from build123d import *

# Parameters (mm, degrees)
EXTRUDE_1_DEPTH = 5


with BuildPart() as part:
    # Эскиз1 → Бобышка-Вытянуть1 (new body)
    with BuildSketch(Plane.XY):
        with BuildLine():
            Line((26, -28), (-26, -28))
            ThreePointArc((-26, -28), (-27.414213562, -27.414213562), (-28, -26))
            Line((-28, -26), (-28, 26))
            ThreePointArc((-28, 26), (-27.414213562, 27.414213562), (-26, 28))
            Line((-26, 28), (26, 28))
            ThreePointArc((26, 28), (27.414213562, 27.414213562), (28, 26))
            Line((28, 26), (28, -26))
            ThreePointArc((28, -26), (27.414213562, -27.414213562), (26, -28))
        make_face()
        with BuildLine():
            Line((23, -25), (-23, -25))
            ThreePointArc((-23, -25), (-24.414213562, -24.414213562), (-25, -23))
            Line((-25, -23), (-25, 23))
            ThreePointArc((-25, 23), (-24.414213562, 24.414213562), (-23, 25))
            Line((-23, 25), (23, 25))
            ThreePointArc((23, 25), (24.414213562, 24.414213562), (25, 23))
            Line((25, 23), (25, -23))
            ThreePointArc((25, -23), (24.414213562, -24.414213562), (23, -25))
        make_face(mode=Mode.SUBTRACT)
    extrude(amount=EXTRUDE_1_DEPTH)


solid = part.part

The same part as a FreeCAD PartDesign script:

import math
import FreeCAD as App
import Part
import Sketcher

V = App.Vector
Q = App.Units.Quantity

doc = App.newDocument("Part")
body = doc.addObject("PartDesign::Body", "Body")

# Sketch on XY plane
sketch1 = body.newObject("Sketcher::SketchObject", "Sketch")
sketch1.AttachmentSupport = (doc.getObject("XY_Plane"), [""])
sketch1.MapMode = "FlatFace"
sketch1.addGeometry(Part.LineSegment(V(-26, -28, 0), V(26, -28, 0)), False)
sketch1.addGeometry(Part.ArcOfCircle(Part.Circle(V(26, -26, 0), V(0, 0, 1), 2), math.radians(-90), math.radians(0)), False)
sketch1.addGeometry(Part.LineSegment(V(28, -26, 0), V(28, 26, 0)), False)
sketch1.addGeometry(Part.ArcOfCircle(Part.Circle(V(26, 26, 0), V(0, 0, 1), 2), math.radians(0), math.radians(90)), False)
sketch1.addGeometry(Part.LineSegment(V(26, 28, 0), V(-26, 28, 0)), False)
sketch1.addGeometry(Part.ArcOfCircle(Part.Circle(V(-26, 26, 0), V(0, 0, 1), 2), math.radians(90), math.radians(180)), False)
sketch1.addGeometry(Part.LineSegment(V(-28, 26, 0), V(-28, -26, 0)), False)
sketch1.addGeometry(Part.ArcOfCircle(Part.Circle(V(-26, -26, 0), V(0, 0, 1), 2), math.radians(-180), math.radians(-90)), False)
sketch1.addGeometry(Part.LineSegment(V(23, -25, 0), V(-23, -25, 0)), False)
sketch1.addGeometry(Part.ArcOfCircle(Part.Circle(V(-23, -23, 0), V(0, 0, 1), 2), math.radians(-180), math.radians(-90)), False)
sketch1.addGeometry(Part.LineSegment(V(-25, -23, 0), V(-25, 23, 0)), False)
sketch1.addGeometry(Part.ArcOfCircle(Part.Circle(V(-23, 23, 0), V(0, 0, 1), 2), math.radians(90), math.radians(180)), False)
sketch1.addGeometry(Part.LineSegment(V(-23, 25, 0), V(23, 25, 0)), False)
sketch1.addGeometry(Part.ArcOfCircle(Part.Circle(V(23, 23, 0), V(0, 0, 1), 2), math.radians(0), math.radians(90)), False)
sketch1.addGeometry(Part.LineSegment(V(25, 23, 0), V(25, -23, 0)), False)
sketch1.addGeometry(Part.ArcOfCircle(Part.Circle(V(23, -23, 0), V(0, 0, 1), 2), math.radians(-90), math.radians(0)), False)
sketch1.addConstraint(Sketcher.Constraint("Tangent", 0, 2, 1, 1))
sketch1.addConstraint(Sketcher.Constraint("Tangent", 1, 2, 2, 1))
sketch1.addConstraint(Sketcher.Constraint("Tangent", 2, 2, 3, 1))
sketch1.addConstraint(Sketcher.Constraint("Tangent", 3, 2, 4, 1))
sketch1.addConstraint(Sketcher.Constraint("Tangent", 4, 2, 5, 1))
sketch1.addConstraint(Sketcher.Constraint("Tangent", 5, 2, 6, 1))
sketch1.addConstraint(Sketcher.Constraint("Tangent", 6, 2, 7, 1))
sketch1.addConstraint(Sketcher.Constraint("Tangent", 7, 2, 0, 1))
sketch1.addConstraint(Sketcher.Constraint("Tangent", 8, 2, 9, 2))
sketch1.addConstraint(Sketcher.Constraint("Tangent", 9, 1, 10, 1))
sketch1.addConstraint(Sketcher.Constraint("Tangent", 10, 2, 11, 2))
sketch1.addConstraint(Sketcher.Constraint("Tangent", 11, 1, 12, 1))
sketch1.addConstraint(Sketcher.Constraint("Tangent", 12, 2, 13, 2))
sketch1.addConstraint(Sketcher.Constraint("Tangent", 13, 1, 14, 1))
sketch1.addConstraint(Sketcher.Constraint("Tangent", 14, 2, 15, 2))
sketch1.addConstraint(Sketcher.Constraint("Tangent", 15, 1, 8, 1))
sketch1.addConstraint(Sketcher.Constraint("Horizontal", 0))
sketch1.addConstraint(Sketcher.Constraint("Vertical", 2))
sketch1.addConstraint(Sketcher.Constraint("Horizontal", 4))
sketch1.addConstraint(Sketcher.Constraint("Vertical", 6))
sketch1.addConstraint(Sketcher.Constraint("Horizontal", 8))
sketch1.addConstraint(Sketcher.Constraint("Vertical", 10))
sketch1.addConstraint(Sketcher.Constraint("Horizontal", 12))
sketch1.addConstraint(Sketcher.Constraint("Vertical", 14))
sketch1.addConstraint(Sketcher.Constraint("Equal", 1, 3))
sketch1.addConstraint(Sketcher.Constraint("Equal", 3, 5))
sketch1.addConstraint(Sketcher.Constraint("Equal", 5, 7))
sketch1.addConstraint(Sketcher.Constraint("Equal", 7, 9))
sketch1.addConstraint(Sketcher.Constraint("Equal", 9, 11))
sketch1.addConstraint(Sketcher.Constraint("Equal", 11, 13))
sketch1.addConstraint(Sketcher.Constraint("Equal", 13, 15))
sketch1.addConstraint(Sketcher.Constraint("Symmetric", 1, 3, 5, 3, -1, 1))
sketch1.addConstraint(Sketcher.Constraint("Symmetric", 9, 3, 13, 3, -1, 1))
sketch1.addConstraint(Sketcher.Constraint("Equal", 4, 2))
sketch1.addConstraint(Sketcher.Constraint("Equal", 12, 10))
sketch1.addConstraint(Sketcher.Constraint("Radius", 1, Q("2 mm")))
sketch1.addConstraint(Sketcher.Constraint("DistanceX", 0, 1, 0, 2, Q("52 mm")))
sketch1.addConstraint(Sketcher.Constraint("DistanceX", 8, 2, 8, 1, Q("46 mm")))
pad1 = body.newObject("PartDesign::Pad", "Pad")
pad1.Profile = sketch1
pad1.Length = 5

doc.recompute()
